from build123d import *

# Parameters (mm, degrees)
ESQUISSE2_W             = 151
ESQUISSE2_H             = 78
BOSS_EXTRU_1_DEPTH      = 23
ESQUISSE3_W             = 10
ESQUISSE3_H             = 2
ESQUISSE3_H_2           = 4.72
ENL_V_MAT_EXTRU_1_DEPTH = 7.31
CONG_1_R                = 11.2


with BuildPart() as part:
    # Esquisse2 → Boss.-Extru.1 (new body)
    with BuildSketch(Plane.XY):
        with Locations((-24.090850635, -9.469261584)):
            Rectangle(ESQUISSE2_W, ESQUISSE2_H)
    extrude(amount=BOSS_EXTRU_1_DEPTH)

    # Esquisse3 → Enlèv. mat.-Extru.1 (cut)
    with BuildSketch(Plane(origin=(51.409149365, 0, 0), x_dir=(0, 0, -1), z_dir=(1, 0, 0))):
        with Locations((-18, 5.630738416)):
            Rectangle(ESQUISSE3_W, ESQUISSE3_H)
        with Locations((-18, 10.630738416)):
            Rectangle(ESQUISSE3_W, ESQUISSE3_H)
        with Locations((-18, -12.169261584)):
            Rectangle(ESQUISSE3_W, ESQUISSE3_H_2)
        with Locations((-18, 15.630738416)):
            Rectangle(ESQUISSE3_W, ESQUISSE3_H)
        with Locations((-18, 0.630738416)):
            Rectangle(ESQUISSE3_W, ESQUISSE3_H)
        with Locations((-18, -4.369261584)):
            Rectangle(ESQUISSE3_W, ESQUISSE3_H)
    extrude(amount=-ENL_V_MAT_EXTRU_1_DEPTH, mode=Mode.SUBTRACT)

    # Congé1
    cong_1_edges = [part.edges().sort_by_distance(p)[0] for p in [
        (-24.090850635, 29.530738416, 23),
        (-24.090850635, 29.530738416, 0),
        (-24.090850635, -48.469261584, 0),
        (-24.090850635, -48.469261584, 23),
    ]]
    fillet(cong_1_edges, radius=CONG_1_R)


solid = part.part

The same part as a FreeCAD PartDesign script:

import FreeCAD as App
import Part
import Sketcher
from FreeCAD import Vector
Q = App.Units.Quantity


def edges_at(feature, points):
    """Names of the edges that pass closest to the given points."""
    edges = feature.Shape.Edges
    near = lambda p: min(range(len(edges)), key=lambda i: edges[i].distToShape(Part.Vertex(*p))[0])
    return sorted({f"Edge{near(p) + 1}" for p in points})

doc = App.newDocument("Part")
params = doc.addObject("Spreadsheet::Sheet", "Params")
for row, (alias, value) in enumerate([
    ("sketch1_width", "151 mm"),
    ("sketch1_height", "78 mm"),
    ("pad1_length", "23 mm"),
    ("sketch2_width", "2 mm"),
    ("sketch2_height", "10 mm"),
    ("sketch2_width2", "4.72 mm"),
    ("pocket1_length", "7.31 mm"),
    ("fillet_radius", "11.2 mm"),
], start=1):
    params.set(f"A{row}", alias)
    params.set(f"B{row}", "=" + value)
    params.setAlias(f"B{row}", alias)

body = doc.addObject("PartDesign::Body", "Body")

sketch1 = body.newObject("Sketcher::SketchObject", "Sketch")
sketch1.AttachmentSupport = (doc.getObject("XY_Plane"), [""])
sketch1.MapMode = "FlatFace"
sketch1.addGeometry(Part.LineSegment(Vector(-100, 30, 0), Vector(-100, -48, 0)), False)
sketch1.addGeometry(Part.LineSegment(Vector(-100, -48, 0), Vector(51, -48, 0)), False)
sketch1.addGeometry(Part.LineSegment(Vector(51, -48, 0), Vector(51, 30, 0)), False)
sketch1.addGeometry(Part.LineSegment(Vector(51, 30, 0), Vector(-100, 30, 0)), False)
sketch1.addConstraint(Sketcher.Constraint("Coincident", 0, 2, 1, 1))
sketch1.addConstraint(Sketcher.Constraint("Coincident", 1, 2, 2, 1))
sketch1.addConstraint(Sketcher.Constraint("Coincident", 2, 2, 3, 1))
sketch1.addConstraint(Sketcher.Constraint("Coincident", 3, 2, 0, 1))
sketch1.addConstraint(Sketcher.Constraint("Vertical", 0))
sketch1.addConstraint(Sketcher.Constraint("Horizontal", 1))
sketch1.addConstraint(Sketcher.Constraint("Vertical", 2))
sketch1.addConstraint(Sketcher.Constraint("Horizontal", 3))
sketch1.addConstraint(Sketcher.Constraint("DistanceX", 1, 1, 1, 2, Q("151 mm")))
sketch1.addConstraint(Sketcher.Constraint("DistanceY", 0, 2, 0, 1, Q("78 mm")))
sketch1.addConstraint(Sketcher.Constraint("DistanceX", 0, 2, -1, 1, Q("99.590851 mm")))
sketch1.addConstraint(Sketcher.Constraint("DistanceY", 0, 2, -1, 1, Q("48.469262 mm")))
sketch1.setExpression("Constraints[8]", "Params.sketch1_width")
sketch1.setExpression("Constraints[9]", "Params.sketch1_height")
pad1 = body.newObject("PartDesign::Pad", "Pad")
pad1.Profile = sketch1
pad1.setExpression("Length", "Params.pad1_length")

sketch2 = body.newObject("Sketcher::SketchObject", "Sketch001")
sketch2.AttachmentSupport = (doc.getObject("YZ_Plane"), [""])
sketch2.MapMode = "FlatFace"
sketch2.AttachmentOffset = App.Placement(Vector(0, 0, 51.409149), App.Rotation())
sketch2.addGeometry(Part.LineSegment(Vector(6.6, 23, 0), Vector(4.6, 23, 0)), False)
sketch2.addGeometry(Part.LineSegment(Vector(4.6, 23, 0), Vector(4.6, 13, 0)), False)
sketch2.addGeometry(Part.LineSegment(Vector(4.6, 13, 0), Vector(6.6, 13, 0)), False)
sketch2.addGeometry(Part.LineSegment(Vector(6.6, 13, 0), Vector(6.6, 23, 0)), False)
sketch2.addGeometry(Part.LineSegment(Vector(11.6, 23, 0), Vector(9.6, 23, 0)), False)
sketch2.addGeometry(Part.LineSegment(Vector(9.6, 23, 0), Vector(9.6, 13, 0)), False)
sketch2.addGeometry(Part.LineSegment(Vector(9.6, 13, 0), Vector(11.6, 13, 0)), False)
sketch2.addGeometry(Part.LineSegment(Vector(11.6, 13, 0), Vector(11.6, 23, 0)), False)
sketch2.addGeometry(Part.LineSegment(Vector(-9.8, 23, 0), Vector(-14.5, 23, 0)), False)
sketch2.addGeometry(Part.LineSegment(Vector(-14.5, 23, 0), Vector(-14.5, 13, 0)), False)
sketch2.addGeometry(Part.LineSegment(Vector(-14.5, 13, 0), Vector(-9.8, 13, 0)), False)
sketch2.addGeometry(Part.LineSegment(Vector(-9.8, 13, 0), Vector(-9.8, 23, 0)), False)
sketch2.addGeometry(Part.LineSegment(Vector(16.6, 23, 0), Vector(14.6, 23, 0)), False)
sketch2.addGeometry(Part.LineSegment(Vector(14.6, 23, 0), Vector(14.6, 13, 0)), False)
sketch2.addGeometry(Part.LineSegment(Vector(14.6, 13, 0), Vector(16.6, 13, 0)), False)
sketch2.addGeometry(Part.LineSegment(Vector(16.6, 13, 0), Vector(16.6, 23, 0)), False)
sketch2.addGeometry(Part.LineSegment(Vector(1.6, 23, 0), Vector(-0.4, 23, 0)), False)
sketch2.addGeometry(Part.LineSegment(Vector(-0.4, 23, 0), Vector(-0.4, 13, 0)), False)
sketch2.addGeometry(Part.LineSegment(Vector(-0.4, 13, 0), Vector(1.6, 13, 0)), False)
sketch2.addGeometry(Part.LineSegment(Vector(1.6, 13, 0), Vector(1.6, 23, 0)), False)
sketch2.addGeometry(Part.LineSegment(Vector(-3.4, 23, 0), Vector(-5.4, 23, 0)), False)
sketch2.addGeometry(Part.LineSegment(Vector(-5.4, 23, 0), Vector(-5.4, 13, 0)), False)
sketch2.addGeometry(Part.LineSegment(Vector(-5.4, 13, 0), Vector(-3.4, 13, 0)), False)
sketch2.addGeometry(Part.LineSegment(Vector(-3.4, 13, 0), Vector(-3.4, 23, 0)), False)
sketch2.addConstraint(Sketcher.Constraint("Coincident", 0, 2, 1, 1))
sketch2.addConstraint(Sketcher.Constraint("Coincident", 1, 2, 2, 1))
sketch2.addConstraint(Sketcher.Constraint("Coincident", 2, 2, 3, 1))
sketch2.addConstraint(Sketcher.Constraint("Coincident", 3, 2, 0, 1))
sketch2.addConstraint(Sketcher.Constraint("Coincident", 4, 2, 5, 1))
sketch2.addConstraint(Sketcher.Constraint("Coincident", 5, 2, 6, 1))
sketch2.addConstraint(Sketcher.Constraint("Coincident", 6, 2, 7, 1))
sketch2.addConstraint(Sketcher.Constraint("Coincident", 7, 2, 4, 1))
sketch2.addConstraint(Sketcher.Constraint("Coincident", 8, 2, 9, 1))
sketch2.addConstraint(Sketcher.Constraint("Coincident", 9, 2, 10, 1))
sketch2.addConstraint(Sketcher.Constraint("Coincident", 10, 2, 11, 1))
sketch2.addConstraint(Sketcher.Constraint("Coincident", 11, 2, 8, 1))
sketch2.addConstraint(Sketcher.Constraint("Coincident", 12, 2, 13, 1))
sketch2.addConstraint(Sketcher.Constraint("Coincident", 13, 2, 14, 1))
sketch2.addConstraint(Sketcher.Constraint("Coincident", 14, 2, 15, 1))
sketch2.addConstraint(Sketcher.Constraint("Coincident", 15, 2, 12, 1))
sketch2.addConstraint(Sketcher.Constraint("Coincident", 16, 2, 17, 1))
sketch2.addConstraint(Sketcher.Constraint("Coincident", 17, 2, 18, 1))
sketch2.addConstraint(Sketcher.Constraint("Coincident", 18, 2, 19, 1))
sketch2.addConstraint(Sketcher.Constraint("Coincident", 19, 2, 16, 1))
sketch2.addConstraint(Sketcher.Constraint("Coincident", 20, 2, 21, 1))
sketch2.addConstraint(Sketcher.Constraint("Coincident", 21, 2, 22, 1))
sketch2.addConstraint(Sketcher.Constraint("Coincident", 22, 2, 23, 1))
sketch2.addConstraint(Sketcher.Constraint("Coincident", 23, 2, 20, 1))
sketch2.addConstraint(Sketcher.Constraint("Horizontal", 0))
sketch2.addConstraint(Sketcher.Constraint("Vertical", 1))
sketch2.addConstraint(Sketcher.Constraint("Horizontal", 2))
sketch2.addConstraint(Sketcher.Constraint("Vertical", 3))
sketch2.addConstraint(Sketcher.Constraint("Horizontal", 4))
sketch2.addConstraint(Sketcher.Constraint("Vertical", 5))
sketch2.addConstraint(Sketcher.Constraint("Horizontal", 6))
sketch2.addConstraint(Sketcher.Constraint("Vertical", 7))
sketch2.addConstraint(Sketcher.Constraint("Horizontal", 8))
sketch2.addConstraint(Sketcher.Constraint("Vertical", 9))
sketch2.addConstraint(Sketcher.Constraint("Horizontal", 10))
sketch2.addConstraint(Sketcher.Constraint("Vertical", 11))
sketch2.addConstraint(Sketcher.Constraint("Horizontal", 12))
sketch2.addConstraint(Sketcher.Constraint("Vertical", 13))
sketch2.addConstraint(Sketcher.Constraint("Horizontal", 14))
sketch2.addConstraint(Sketcher.Constraint("Vertical", 15))
sketch2.addConstraint(Sketcher.Constraint("Horizontal", 16))
sketch2.addConstraint(Sketcher.Constraint("Vertical", 17))
sketch2.addConstraint(Sketcher.Constraint("Horizontal", 18))
sketch2.addConstraint(Sketcher.Constraint("Vertical", 19))
sketch2.addConstraint(Sketcher.Constraint("Horizontal", 20))
sketch2.addConstraint(Sketcher.Constraint("Vertical", 21))
sketch2.addConstraint(Sketcher.Constraint("Horizontal", 22))
sketch2.addConstraint(Sketcher.Constraint("Vertical", 23))
sketch2.addConstraint(Sketcher.Constraint("Horizontal", 3, 2, 4, 2))
sketch2.addConstraint(Sketcher.Constraint("Horizontal", 2, 2, 5, 2))
sketch2.addConstraint(Sketcher.Constraint("Horizontal", 7, 2, 8, 2))
sketch2.addConstraint(Sketcher.Constraint("Horizontal", 6, 2, 9, 2))
sketch2.addConstraint(Sketcher.Constraint("Horizontal", 11, 2, 12, 2))
sketch2.addConstraint(Sketcher.Constraint("Horizontal", 10, 2, 13, 2))
sketch2.addConstraint(Sketcher.Constraint("Horizontal", 15, 2, 16, 2))
sketch2.addConstraint(Sketcher.Constraint("Horizontal", 14, 2, 17, 2))
sketch2.addConstraint(Sketcher.Constraint("Horizontal", 19, 2, 20, 2))
sketch2.addConstraint(Sketcher.Constraint("Horizontal", 18, 2, 21, 2))
sketch2.addConstraint(Sketcher.Constraint("Equal", 2, 4))
sketch2.addConstraint(Sketcher.Constraint("Equal", 6, 12))
sketch2.addConstraint(Sketcher.Constraint("Equal", 14, 16))
sketch2.addConstraint(Sketcher.Constraint("Equal", 18, 20))
sketch2.addConstraint(Sketcher.Constraint("DistanceX", 0, 2, 0, 1, Q("2 mm")))
sketch2.addConstraint(Sketcher.Constraint("DistanceY", 1, 2, 1, 1, Q("10 mm")))
sketch2.addConstraint(Sketcher.Constraint("DistanceY", -1, 1, 0, 2, Q("23 mm")))
sketch2.addConstraint(Sketcher.Constraint("DistanceX", 3, 2, 4, 2, Q("3 mm")))
sketch2.addConstraint(Sketcher.Constraint("DistanceX", 7, 2, 12, 2, Q("3 mm")))
sketch2.addConstraint(Sketcher.Constraint("DistanceX", 16, 2, 0, 2, Q("5 mm")))
sketch2.addConstraint(Sketcher.Constraint("DistanceX", 20, 2, 16, 2, Q("5 mm")))
sketch2.addConstraint(Sketcher.Constraint("DistanceX", 8, 2, 8, 1, Q("4.72 mm")))
sketch2.addConstraint(Sketcher.Constraint("DistanceX", 8, 2, 0, 2, Q("19.16 mm")))
sketch2.addConstraint(Sketcher.Constraint("DistanceX", -1, 1, 0, 2, Q("4.630738 mm")))
sketch2.setExpression("Constraints[62]", "Params.sketch2_width")
sketch2.setExpression("Constraints[63]", "Params.sketch2_height")
sketch2.setExpression("Constraints[69]", "Params.sketch2_width2")
pocket1 = body.newObject("PartDesign::Pocket", "Pocket")
pocket1.Profile = sketch2
pocket1.setExpression("Length", "Params.pocket1_length")
doc.recompute()

fillet = body.newObject("PartDesign::Fillet", "Fillet")
fillet.Base = (pocket1, edges_at(pocket1, [
    (-24.091, 29.531, 23),
    (-24.091, 29.531, 0),
    (-24.091, -48.469, 0),
    (-24.091, -48.469, 23),
]))
fillet.setExpression("Radius", "Params.fillet_radius")

doc.recompute()
